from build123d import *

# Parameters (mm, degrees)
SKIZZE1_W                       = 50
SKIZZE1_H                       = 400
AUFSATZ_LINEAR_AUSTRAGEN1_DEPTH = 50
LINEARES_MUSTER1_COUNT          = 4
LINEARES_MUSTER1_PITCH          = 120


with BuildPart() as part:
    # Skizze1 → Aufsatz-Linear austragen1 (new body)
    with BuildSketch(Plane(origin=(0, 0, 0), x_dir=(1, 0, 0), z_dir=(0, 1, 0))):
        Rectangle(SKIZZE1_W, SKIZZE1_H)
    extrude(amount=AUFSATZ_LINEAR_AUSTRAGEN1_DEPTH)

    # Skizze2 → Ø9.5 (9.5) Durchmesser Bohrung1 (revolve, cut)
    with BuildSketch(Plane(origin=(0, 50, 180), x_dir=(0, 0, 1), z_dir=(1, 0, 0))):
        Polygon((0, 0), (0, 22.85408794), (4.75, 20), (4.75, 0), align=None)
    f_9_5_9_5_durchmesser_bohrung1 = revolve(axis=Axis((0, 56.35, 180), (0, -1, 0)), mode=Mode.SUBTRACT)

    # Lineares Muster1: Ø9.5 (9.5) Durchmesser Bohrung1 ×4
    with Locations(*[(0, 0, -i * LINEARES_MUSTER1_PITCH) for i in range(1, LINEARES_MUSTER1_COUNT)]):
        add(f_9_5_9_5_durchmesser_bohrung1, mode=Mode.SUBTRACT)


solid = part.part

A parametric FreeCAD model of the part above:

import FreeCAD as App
import Part
import Sketcher
from FreeCAD import Vector
Q = App.Units.Quantity


def add_polygon(sketch, points):
    """Adds a closed chain of lines whose ends are joined by coincident constraints."""
    first, n = sketch.GeometryCount, len(points)
    for a, b in zip(points, points[1:] + points[:1]):
        sketch.addGeometry(Part.LineSegment(App.Vector(*a, 0), App.Vector(*b, 0)), False)
    for i in range(n):
        sketch.addConstraint(Sketcher.Constraint("Coincident", first + i, 2, first + (i + 1) % n, 1))

doc = App.newDocument("Part")
body = doc.addObject("PartDesign::Body", "Body")

# Sketch on XZ plane
sketch1 = body.newObject("Sketcher::SketchObject", "Sketch")
sketch1.AttachmentSupport = (doc.getObject("XZ_Plane"), [""])
sketch1.MapMode = "FlatFace"
add_polygon(sketch1, [(-25, -200), (-25, 200), (25, 200), (25, -200)])  # lines 0-3
sketch1.addConstraint(Sketcher.Constraint("Vertical", 0))
sketch1.addConstraint(Sketcher.Constraint("Horizontal", 1))
sketch1.addConstraint(Sketcher.Constraint("Vertical", 2))
sketch1.addConstraint(Sketcher.Constraint("Horizontal", 3))
sketch1.addConstraint(Sketcher.Constraint("Symmetric", 0, 2, 2, 2, -1, 1))
sketch1.addConstraint(Sketcher.Constraint("DistanceX", 1, 1, 1, 2, 50.0))
sketch1.addConstraint(Sketcher.Constraint("DistanceY", 0, 1, 0, 2, 400.0))
pad1 = body.newObject("PartDesign::Pad", "Pad")
pad1.Profile = sketch1
pad1.Length = 50
pad1.Reversed = True

# Sketch on YZ plane
sketch2 = body.newObject("Sketcher::SketchObject", "Sketch001")
sketch2.AttachmentSupport = (doc.getObject("YZ_Plane"), [""])
sketch2.MapMode = "FlatFace"
add_polygon(sketch2, [(27.1, 180), (50, 180), (50, 184.8), (30, 184.8)])  # lines 0-3
sketch2.addGeometry(Part.LineSegment(Vector(50, 180, 0), Vector(27.1, 180, 0)), True)  # axis
sketch2.addConstraint(Sketcher.Constraint("Horizontal", 0))
sketch2.addConstraint(Sketcher.Constraint("Vertical", 1))
sketch2.addConstraint(Sketcher.Constraint("Horizontal", 2))
sketch2.addConstraint(Sketcher.Constraint("Horizontal", 4))
sketch2.addConstraint(Sketcher.Constraint("Coincident", 4, 1, 0, 2))
sketch2.addConstraint(Sketcher.Constraint("Equal", 0, 4))
sketch2.addConstraint(Sketcher.Constraint("DistanceX", 2, 2, 2, 1, 20.0))
sketch2.addConstraint(Sketcher.Constraint("Angle", 3, Q("-121 deg")))
sketch2.addConstraint(Sketcher.Constraint("DistanceX", -1, 1, 0, 2, 50.0))
sketch2.addConstraint(Sketcher.Constraint("DistanceY", -1, 1, 0, 2, 180.0))
sketch2.addConstraint(Sketcher.Constraint("DistanceY", 1, 1, 1, 2, 4.75))
groove = body.newObject("PartDesign::Groove", "Groove")
groove.Profile = sketch2
groove.ReferenceAxis = (sketch2, ["Axis0"])
groove.Angle = 360
doc.recompute()

linearpattern = body.newObject("PartDesign::LinearPattern", "LinearPattern")
linearpattern.Originals = [groove]
linearpattern.Direction = (doc.getObject("Z_Axis"), [""])
linearpattern.Mode = "offset"
linearpattern.Offset = 120
linearpattern.Occurrences = 4
linearpattern.Reversed = True
body.Tip = linearpattern

doc.recompute()
